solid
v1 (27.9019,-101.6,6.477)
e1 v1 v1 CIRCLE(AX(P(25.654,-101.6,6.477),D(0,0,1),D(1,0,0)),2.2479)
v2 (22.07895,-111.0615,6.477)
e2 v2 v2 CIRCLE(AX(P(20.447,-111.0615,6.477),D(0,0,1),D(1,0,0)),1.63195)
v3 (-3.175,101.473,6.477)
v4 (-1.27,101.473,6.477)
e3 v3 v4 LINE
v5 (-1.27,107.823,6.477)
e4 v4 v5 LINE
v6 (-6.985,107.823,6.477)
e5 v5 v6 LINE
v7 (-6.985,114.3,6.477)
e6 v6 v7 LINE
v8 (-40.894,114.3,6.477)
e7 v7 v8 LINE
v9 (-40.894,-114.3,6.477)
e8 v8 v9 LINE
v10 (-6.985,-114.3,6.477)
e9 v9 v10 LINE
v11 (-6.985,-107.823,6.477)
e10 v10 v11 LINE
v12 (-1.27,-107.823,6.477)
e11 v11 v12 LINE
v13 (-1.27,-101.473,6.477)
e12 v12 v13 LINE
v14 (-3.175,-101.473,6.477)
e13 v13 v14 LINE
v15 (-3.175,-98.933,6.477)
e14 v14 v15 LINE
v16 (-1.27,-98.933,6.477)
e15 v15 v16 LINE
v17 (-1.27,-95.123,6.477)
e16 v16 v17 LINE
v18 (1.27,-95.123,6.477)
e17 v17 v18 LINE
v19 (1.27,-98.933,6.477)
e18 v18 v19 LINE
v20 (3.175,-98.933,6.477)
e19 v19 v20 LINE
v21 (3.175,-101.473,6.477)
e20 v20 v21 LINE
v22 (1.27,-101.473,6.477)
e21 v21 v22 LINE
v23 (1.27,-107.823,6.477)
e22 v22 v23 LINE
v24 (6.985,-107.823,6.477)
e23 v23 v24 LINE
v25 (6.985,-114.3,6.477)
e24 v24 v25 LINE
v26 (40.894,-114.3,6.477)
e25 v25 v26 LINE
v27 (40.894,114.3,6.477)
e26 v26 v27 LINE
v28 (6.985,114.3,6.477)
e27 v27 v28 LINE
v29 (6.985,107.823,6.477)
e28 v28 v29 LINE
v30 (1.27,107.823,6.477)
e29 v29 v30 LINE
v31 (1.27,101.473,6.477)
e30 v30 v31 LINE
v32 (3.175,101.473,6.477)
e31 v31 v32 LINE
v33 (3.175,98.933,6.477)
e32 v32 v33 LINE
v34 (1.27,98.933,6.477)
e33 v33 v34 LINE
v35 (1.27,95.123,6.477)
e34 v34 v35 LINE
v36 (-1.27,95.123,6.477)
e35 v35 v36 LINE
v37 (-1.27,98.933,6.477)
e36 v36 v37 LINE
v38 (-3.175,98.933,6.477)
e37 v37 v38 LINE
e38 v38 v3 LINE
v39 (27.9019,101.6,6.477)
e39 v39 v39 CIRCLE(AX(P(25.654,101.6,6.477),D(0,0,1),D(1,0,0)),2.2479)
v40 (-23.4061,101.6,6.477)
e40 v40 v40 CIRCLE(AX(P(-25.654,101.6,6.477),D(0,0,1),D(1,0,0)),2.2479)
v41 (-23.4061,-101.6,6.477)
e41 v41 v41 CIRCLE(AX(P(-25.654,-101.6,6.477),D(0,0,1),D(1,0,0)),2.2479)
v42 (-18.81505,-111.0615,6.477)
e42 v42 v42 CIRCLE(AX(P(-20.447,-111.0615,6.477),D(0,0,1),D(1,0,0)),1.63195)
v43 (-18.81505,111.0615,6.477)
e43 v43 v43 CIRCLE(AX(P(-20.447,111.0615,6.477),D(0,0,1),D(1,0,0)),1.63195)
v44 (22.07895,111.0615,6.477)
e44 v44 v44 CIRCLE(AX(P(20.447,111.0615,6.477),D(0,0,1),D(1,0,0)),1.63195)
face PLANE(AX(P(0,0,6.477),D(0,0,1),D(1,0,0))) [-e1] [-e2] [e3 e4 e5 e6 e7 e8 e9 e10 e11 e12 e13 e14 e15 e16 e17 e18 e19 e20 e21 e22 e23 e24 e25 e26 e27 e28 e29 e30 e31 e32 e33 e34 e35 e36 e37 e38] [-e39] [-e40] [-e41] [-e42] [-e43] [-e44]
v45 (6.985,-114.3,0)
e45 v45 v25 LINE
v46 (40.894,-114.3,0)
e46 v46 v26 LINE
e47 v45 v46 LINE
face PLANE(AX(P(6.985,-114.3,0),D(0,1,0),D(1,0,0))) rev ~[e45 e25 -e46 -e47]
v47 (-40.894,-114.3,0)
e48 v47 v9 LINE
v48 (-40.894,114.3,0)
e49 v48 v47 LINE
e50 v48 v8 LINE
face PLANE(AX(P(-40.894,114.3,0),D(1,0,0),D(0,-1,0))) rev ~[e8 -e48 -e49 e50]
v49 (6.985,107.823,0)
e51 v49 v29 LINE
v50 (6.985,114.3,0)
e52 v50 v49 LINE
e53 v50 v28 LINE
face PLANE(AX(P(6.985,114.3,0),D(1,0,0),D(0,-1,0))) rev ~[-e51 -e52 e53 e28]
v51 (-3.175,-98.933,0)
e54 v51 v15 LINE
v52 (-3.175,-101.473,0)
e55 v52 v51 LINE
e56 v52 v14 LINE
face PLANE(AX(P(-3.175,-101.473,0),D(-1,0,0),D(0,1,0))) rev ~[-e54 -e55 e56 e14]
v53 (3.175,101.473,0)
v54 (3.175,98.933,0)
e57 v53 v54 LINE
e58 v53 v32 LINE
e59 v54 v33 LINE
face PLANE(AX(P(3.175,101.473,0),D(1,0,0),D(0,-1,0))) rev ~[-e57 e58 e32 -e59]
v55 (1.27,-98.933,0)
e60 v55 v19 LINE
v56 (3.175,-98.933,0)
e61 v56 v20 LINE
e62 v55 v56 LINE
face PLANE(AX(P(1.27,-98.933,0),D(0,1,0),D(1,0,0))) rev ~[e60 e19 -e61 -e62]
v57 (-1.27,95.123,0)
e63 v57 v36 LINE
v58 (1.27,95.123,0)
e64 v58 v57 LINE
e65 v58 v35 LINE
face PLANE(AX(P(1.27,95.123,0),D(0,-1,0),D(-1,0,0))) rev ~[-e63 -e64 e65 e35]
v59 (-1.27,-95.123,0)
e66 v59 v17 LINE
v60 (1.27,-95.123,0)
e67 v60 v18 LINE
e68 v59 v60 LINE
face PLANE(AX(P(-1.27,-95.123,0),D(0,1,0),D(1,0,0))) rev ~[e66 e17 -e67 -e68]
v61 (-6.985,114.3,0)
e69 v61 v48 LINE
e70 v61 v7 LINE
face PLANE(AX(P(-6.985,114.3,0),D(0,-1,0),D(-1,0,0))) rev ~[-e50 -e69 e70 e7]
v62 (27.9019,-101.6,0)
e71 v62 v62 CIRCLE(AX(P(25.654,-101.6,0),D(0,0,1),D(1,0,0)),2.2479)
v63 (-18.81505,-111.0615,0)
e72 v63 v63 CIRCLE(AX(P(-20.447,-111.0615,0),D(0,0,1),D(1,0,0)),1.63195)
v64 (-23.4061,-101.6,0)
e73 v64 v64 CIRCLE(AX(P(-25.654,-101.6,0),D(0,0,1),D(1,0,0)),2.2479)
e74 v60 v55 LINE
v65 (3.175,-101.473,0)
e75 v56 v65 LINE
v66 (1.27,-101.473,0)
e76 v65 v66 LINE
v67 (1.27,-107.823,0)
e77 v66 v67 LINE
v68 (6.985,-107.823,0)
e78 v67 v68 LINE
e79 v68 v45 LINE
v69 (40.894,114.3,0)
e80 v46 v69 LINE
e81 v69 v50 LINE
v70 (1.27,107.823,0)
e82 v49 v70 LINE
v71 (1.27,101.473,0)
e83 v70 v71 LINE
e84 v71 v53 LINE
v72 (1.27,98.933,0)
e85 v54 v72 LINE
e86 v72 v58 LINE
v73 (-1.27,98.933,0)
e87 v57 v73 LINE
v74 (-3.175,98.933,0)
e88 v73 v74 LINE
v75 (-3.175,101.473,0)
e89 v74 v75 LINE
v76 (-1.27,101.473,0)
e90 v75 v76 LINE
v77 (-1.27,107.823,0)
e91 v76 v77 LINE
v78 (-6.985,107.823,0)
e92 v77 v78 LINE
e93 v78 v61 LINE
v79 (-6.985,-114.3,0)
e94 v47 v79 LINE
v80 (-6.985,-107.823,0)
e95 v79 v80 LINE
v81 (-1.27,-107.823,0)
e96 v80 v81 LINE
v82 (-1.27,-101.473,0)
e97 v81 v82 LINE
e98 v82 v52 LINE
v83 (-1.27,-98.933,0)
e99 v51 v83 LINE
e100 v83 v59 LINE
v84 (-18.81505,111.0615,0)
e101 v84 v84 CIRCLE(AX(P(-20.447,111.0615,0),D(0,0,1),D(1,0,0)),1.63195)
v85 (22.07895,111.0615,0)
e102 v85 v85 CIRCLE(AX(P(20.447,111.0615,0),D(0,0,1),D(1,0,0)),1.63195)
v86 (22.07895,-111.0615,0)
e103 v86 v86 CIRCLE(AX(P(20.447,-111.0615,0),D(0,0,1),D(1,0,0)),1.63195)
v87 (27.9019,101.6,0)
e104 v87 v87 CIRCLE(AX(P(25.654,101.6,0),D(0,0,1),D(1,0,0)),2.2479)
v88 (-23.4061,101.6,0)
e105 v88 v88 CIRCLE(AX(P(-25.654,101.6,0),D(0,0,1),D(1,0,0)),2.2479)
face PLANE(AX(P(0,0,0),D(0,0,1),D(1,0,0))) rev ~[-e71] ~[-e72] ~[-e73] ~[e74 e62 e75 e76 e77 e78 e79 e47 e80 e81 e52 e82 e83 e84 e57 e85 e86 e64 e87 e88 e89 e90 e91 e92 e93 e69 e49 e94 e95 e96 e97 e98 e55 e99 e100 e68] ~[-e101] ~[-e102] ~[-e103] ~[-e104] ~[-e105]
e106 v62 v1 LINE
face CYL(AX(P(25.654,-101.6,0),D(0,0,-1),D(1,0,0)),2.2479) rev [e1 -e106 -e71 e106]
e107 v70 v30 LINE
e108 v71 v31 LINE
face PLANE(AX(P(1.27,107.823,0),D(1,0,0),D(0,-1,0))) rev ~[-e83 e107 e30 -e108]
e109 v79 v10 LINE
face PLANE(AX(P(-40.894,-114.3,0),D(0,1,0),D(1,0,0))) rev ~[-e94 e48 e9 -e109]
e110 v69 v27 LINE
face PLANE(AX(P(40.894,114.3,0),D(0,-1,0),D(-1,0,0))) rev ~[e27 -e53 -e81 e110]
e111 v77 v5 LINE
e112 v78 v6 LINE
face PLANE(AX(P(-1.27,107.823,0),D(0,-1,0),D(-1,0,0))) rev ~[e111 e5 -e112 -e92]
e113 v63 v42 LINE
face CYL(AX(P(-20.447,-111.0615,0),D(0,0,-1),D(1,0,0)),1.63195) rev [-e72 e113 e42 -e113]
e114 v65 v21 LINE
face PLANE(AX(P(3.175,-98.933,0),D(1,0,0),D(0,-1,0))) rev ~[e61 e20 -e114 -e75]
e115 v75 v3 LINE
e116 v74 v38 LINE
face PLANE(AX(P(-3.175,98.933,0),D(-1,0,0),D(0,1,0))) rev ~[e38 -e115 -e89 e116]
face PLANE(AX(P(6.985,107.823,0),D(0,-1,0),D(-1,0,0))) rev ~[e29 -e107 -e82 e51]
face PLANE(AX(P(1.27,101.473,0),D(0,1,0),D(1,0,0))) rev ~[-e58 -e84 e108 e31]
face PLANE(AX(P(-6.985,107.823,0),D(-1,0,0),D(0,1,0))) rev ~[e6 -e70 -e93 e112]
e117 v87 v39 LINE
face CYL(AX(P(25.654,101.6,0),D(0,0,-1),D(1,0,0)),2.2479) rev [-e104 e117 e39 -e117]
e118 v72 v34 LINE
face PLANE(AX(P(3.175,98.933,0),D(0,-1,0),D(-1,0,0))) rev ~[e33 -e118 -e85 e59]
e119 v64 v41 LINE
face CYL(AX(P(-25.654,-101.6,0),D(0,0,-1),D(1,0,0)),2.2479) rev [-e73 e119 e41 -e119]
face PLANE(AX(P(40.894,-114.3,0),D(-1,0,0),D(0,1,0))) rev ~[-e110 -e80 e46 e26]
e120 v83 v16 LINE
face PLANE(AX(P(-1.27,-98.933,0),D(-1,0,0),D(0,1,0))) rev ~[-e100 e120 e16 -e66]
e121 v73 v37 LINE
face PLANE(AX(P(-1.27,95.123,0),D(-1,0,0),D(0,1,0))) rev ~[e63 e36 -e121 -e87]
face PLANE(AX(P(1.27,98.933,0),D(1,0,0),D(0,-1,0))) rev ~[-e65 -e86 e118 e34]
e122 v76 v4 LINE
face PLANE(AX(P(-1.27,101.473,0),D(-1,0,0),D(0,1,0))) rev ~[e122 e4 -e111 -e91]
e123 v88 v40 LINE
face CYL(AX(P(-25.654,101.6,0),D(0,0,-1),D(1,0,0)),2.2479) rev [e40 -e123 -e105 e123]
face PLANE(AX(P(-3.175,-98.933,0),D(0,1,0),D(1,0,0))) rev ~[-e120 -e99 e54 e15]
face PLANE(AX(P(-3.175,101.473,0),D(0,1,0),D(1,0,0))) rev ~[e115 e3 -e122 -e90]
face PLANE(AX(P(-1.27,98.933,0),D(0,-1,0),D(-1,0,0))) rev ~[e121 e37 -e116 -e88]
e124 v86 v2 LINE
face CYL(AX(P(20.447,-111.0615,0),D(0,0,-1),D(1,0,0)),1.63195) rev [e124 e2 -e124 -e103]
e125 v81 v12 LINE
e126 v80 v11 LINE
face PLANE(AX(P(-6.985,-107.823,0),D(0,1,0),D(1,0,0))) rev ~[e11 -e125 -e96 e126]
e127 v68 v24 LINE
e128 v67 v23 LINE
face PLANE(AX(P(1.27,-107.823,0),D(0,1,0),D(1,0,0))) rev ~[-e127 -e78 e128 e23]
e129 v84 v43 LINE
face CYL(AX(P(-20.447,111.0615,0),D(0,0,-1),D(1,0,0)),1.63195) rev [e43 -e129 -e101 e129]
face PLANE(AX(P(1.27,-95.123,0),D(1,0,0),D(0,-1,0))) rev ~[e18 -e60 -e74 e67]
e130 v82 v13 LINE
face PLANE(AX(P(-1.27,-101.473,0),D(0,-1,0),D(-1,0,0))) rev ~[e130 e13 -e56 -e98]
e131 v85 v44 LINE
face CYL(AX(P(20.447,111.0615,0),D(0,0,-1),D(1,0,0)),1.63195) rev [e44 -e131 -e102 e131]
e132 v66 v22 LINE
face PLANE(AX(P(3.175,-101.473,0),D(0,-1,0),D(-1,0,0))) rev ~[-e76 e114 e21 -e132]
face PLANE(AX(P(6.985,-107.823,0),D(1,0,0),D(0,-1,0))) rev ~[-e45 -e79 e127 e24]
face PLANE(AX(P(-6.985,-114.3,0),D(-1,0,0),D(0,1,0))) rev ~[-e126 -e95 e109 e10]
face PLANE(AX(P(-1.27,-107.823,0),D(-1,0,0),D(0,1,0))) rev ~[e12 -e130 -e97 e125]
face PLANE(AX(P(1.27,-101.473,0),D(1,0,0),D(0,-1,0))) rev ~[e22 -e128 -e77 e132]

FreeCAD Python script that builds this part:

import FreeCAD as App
import Part
import Sketcher
Q = App.Units.Quantity

doc = App.newDocument("Part")
body = doc.addObject("PartDesign::Body", "Body")

# Sketch on XY plane
sketch1 = doc.addObject("Sketcher::SketchObject", "Sketch")
body.addObject(sketch1)
sketch1.AttachmentSupport = (doc.XY_Plane, [""])
sketch1.MapMode = "FlatFace"
sketch1.addGeometry([
    Part.LineSegment(App.Vector(-7, -107.8, 0), App.Vector(-1.3, -107.8, 0)),  # 0
    Part.LineSegment(App.Vector(-1.3, -107.8, 0), App.Vector(-1.3, -101.5, 0)),  # 1
    Part.LineSegment(App.Vector(-1.3, -101.5, 0), App.Vector(-3.2, -101.5, 0)),  # 2
    Part.LineSegment(App.Vector(-3.2, -101.5, 0), App.Vector(-3.2, -98.9, 0)),  # 3
    Part.LineSegment(App.Vector(-3.2, -98.9, 0), App.Vector(-1.3, -98.9, 0)),  # 4
    Part.LineSegment(App.Vector(-1.3, -98.9, 0), App.Vector(-1.3, -95.1, 0)),  # 5
    Part.LineSegment(App.Vector(-1.3, -95.1, 0), App.Vector(1.3, -95.1, 0)),  # 6
    Part.LineSegment(App.Vector(1.3, -95.1, 0), App.Vector(1.3, -98.9, 0)),  # 7
    Part.LineSegment(App.Vector(1.3, -98.9, 0), App.Vector(3.2, -98.9, 0)),  # 8
    Part.LineSegment(App.Vector(3.2, -98.9, 0), App.Vector(3.2, -101.5, 0)),  # 9
    Part.LineSegment(App.Vector(3.2, -101.5, 0), App.Vector(1.3, -101.5, 0)),  # 10
    Part.LineSegment(App.Vector(1.3, -101.5, 0), App.Vector(1.3, -107.8, 0)),  # 11
    Part.LineSegment(App.Vector(1.3, -107.8, 0), App.Vector(7, -107.8, 0)),  # 12
    Part.LineSegment(App.Vector(7, -107.8, 0), App.Vector(7, -114.3, 0)),  # 13
    Part.LineSegment(App.Vector(7, -114.3, 0), App.Vector(40.9, -114.3, 0)),  # 14
    Part.LineSegment(App.Vector(40.9, -114.3, 0), App.Vector(40.9, 114.3, 0)),  # 15
    Part.LineSegment(App.Vector(40.9, 114.3, 0), App.Vector(7, 114.3, 0)),  # 16
    Part.LineSegment(App.Vector(7, 114.3, 0), App.Vector(7, 107.8, 0)),  # 17
    Part.LineSegment(App.Vector(7, 107.8, 0), App.Vector(1.3, 107.8, 0)),  # 18
    Part.LineSegment(App.Vector(1.3, 107.8, 0), App.Vector(1.3, 101.5, 0)),  # 19
    Part.LineSegment(App.Vector(1.3, 101.5, 0), App.Vector(3.2, 101.5, 0)),  # 20
    Part.LineSegment(App.Vector(3.2, 101.5, 0), App.Vector(3.2, 98.9, 0)),  # 21
    Part.LineSegment(App.Vector(3.2, 98.9, 0), App.Vector(1.3, 98.9, 0)),  # 22
    Part.LineSegment(App.Vector(1.3, 98.9, 0), App.Vector(1.3, 95.1, 0)),  # 23
    Part.LineSegment(App.Vector(1.3, 95.1, 0), App.Vector(-1.3, 95.1, 0)),  # 24
    Part.LineSegment(App.Vector(-1.3, 95.1, 0), App.Vector(-1.3, 98.9, 0)),  # 25
    Part.LineSegment(App.Vector(-1.3, 98.9, 0), App.Vector(-3.2, 98.9, 0)),  # 26
    Part.LineSegment(App.Vector(-3.2, 98.9, 0), App.Vector(-3.2, 101.5, 0)),  # 27
    Part.LineSegment(App.Vector(-3.2, 101.5, 0), App.Vector(-1.3, 101.5, 0)),  # 28
    Part.LineSegment(App.Vector(-1.3, 101.5, 0), App.Vector(-1.3, 107.8, 0)),  # 29
    Part.LineSegment(App.Vector(-1.3, 107.8, 0), App.Vector(-7, 107.8, 0)),  # 30
    Part.LineSegment(App.Vector(-7, 107.8, 0), App.Vector(-7, 114.3, 0)),  # 31
    Part.LineSegment(App.Vector(-7, 114.3, 0), App.Vector(-40.9, 114.3, 0)),  # 32
    Part.LineSegment(App.Vector(-40.9, 114.3, 0), App.Vector(-40.9, -114.3, 0)),  # 33
    Part.LineSegment(App.Vector(-40.9, -114.3, 0), App.Vector(-7, -114.3, 0)),  # 34
    Part.LineSegment(App.Vector(-7, -114.3, 0), App.Vector(-7, -107.8, 0)),  # 35
    Part.Circle(App.Vector(-25.7, -101.6, 0), App.Vector(0, 0, 1), 2.2),  # 36
    Part.Circle(App.Vector(-20.4, -111.1, 0), App.Vector(0, 0, 1), 1.6),  # 37
    Part.Circle(App.Vector(20.4, -111.1, 0), App.Vector(0, 0, 1), 1.6),  # 38
    Part.Circle(App.Vector(25.7, -101.6, 0), App.Vector(0, 0, 1), 2.2),  # 39
    Part.Circle(App.Vector(-25.7, 101.6, 0), App.Vector(0, 0, 1), 2.2),  # 40
    Part.Circle(App.Vector(-20.4, 111.1, 0), App.Vector(0, 0, 1), 1.6),  # 41
    Part.Circle(App.Vector(20.4, 111.1, 0), App.Vector(0, 0, 1), 1.6),  # 42
    Part.Circle(App.Vector(25.7, 101.6, 0), App.Vector(0, 0, 1), 2.2),  # 43
], False)
sketch1.addConstraint([
    Sketcher.Constraint("Coincident", 0, 2, 1, 1),
    Sketcher.Constraint("Coincident", 1, 2, 2, 1),
    Sketcher.Constraint("Coincident", 2, 2, 3, 1),
    Sketcher.Constraint("Coincident", 3, 2, 4, 1),
    Sketcher.Constraint("Coincident", 4, 2, 5, 1),
    Sketcher.Constraint("Coincident", 5, 2, 6, 1),
    Sketcher.Constraint("Coincident", 6, 2, 7, 1),
    Sketcher.Constraint("Coincident", 7, 2, 8, 1),
    Sketcher.Constraint("Coincident", 8, 2, 9, 1),
    Sketcher.Constraint("Coincident", 9, 2, 10, 1),
    Sketcher.Constraint("Coincident", 10, 2, 11, 1),
    Sketcher.Constraint("Coincident", 11, 2, 12, 1),
    Sketcher.Constraint("Coincident", 12, 2, 13, 1),
    Sketcher.Constraint("Coincident", 13, 2, 14, 1),
    Sketcher.Constraint("Coincident", 14, 2, 15, 1),
    Sketcher.Constraint("Coincident", 15, 2, 16, 1),
    Sketcher.Constraint("Coincident", 16, 2, 17, 1),
    Sketcher.Constraint("Coincident", 17, 2, 18, 1),
    Sketcher.Constraint("Coincident", 18, 2, 19, 1),
    Sketcher.Constraint("Coincident", 19, 2, 20, 1),
    Sketcher.Constraint("Coincident", 20, 2, 21, 1),
    Sketcher.Constraint("Coincident", 21, 2, 22, 1),
    Sketcher.Constraint("Coincident", 22, 2, 23, 1),
    Sketcher.Constraint("Coincident", 23, 2, 24, 1),
    Sketcher.Constraint("Coincident", 24, 2, 25, 1),
    Sketcher.Constraint("Coincident", 25, 2, 26, 1),
    Sketcher.Constraint("Coincident", 26, 2, 27, 1),
    Sketcher.Constraint("Coincident", 27, 2, 28, 1),
    Sketcher.Constraint("Coincident", 28, 2, 29, 1),
    Sketcher.Constraint("Coincident", 29, 2, 30, 1),
    Sketcher.Constraint("Coincident", 30, 2, 31, 1),
    Sketcher.Constraint("Coincident", 31, 2, 32, 1),
    Sketcher.Constraint("Coincident", 32, 2, 33, 1),
    Sketcher.Constraint("Coincident", 33, 2, 34, 1),
    Sketcher.Constraint("Coincident", 34, 2, 35, 1),
    Sketcher.Constraint("Coincident", 35, 2, 0, 1),
    Sketcher.Constraint("Horizontal", 0),
    Sketcher.Constraint("Vertical", 1),
    Sketcher.Constraint("Horizontal", 2),
    Sketcher.Constraint("Vertical", 3),
    Sketcher.Constraint("Horizontal", 4),
    Sketcher.Constraint("Vertical", 5),
    Sketcher.Constraint("Horizontal", 6),
    Sketcher.Constraint("Vertical", 7),
    Sketcher.Constraint("Horizontal", 8),
    Sketcher.Constraint("Vertical", 9),
    Sketcher.Constraint("Horizontal", 10),
    Sketcher.Constraint("Vertical", 11),
    Sketcher.Constraint("Horizontal", 12),
    Sketcher.Constraint("Vertical", 13),
    Sketcher.Constraint("Horizontal", 14),
    Sketcher.Constraint("Vertical", 15),
    Sketcher.Constraint("Horizontal", 16),
    Sketcher.Constraint("Vertical", 17),
    Sketcher.Constraint("Horizontal", 18),
    Sketcher.Constraint("Vertical", 19),
    Sketcher.Constraint("Horizontal", 20),
    Sketcher.Constraint("Vertical", 21),
    Sketcher.Constraint("Horizontal", 22),
    Sketcher.Constraint("Vertical", 23),
    Sketcher.Constraint("Horizontal", 24),
    Sketcher.Constraint("Vertical", 25),
    Sketcher.Constraint("Horizontal", 26),
    Sketcher.Constraint("Vertical", 27),
    Sketcher.Constraint("Horizontal", 28),
    Sketcher.Constraint("Vertical", 29),
    Sketcher.Constraint("Horizontal", 30),
    Sketcher.Constraint("Vertical", 31),
    Sketcher.Constraint("Horizontal", 32),
    Sketcher.Constraint("Vertical", 33),
    Sketcher.Constraint("Horizontal", 34),
    Sketcher.Constraint("Vertical", 35),
    Sketcher.Constraint("Equal", 37, 38),
    Sketcher.Constraint("Equal", 36, 39),
    Sketcher.Constraint("Equal", 39, 40),
    Sketcher.Constraint("Equal", 38, 41),
    Sketcher.Constraint("Equal", 41, 42),
    Sketcher.Constraint("Equal", 40, 43),
    Sketcher.Constraint("Symmetric", 39, 3, 40, 3, -1, 1),
    Sketcher.Constraint("Symmetric", 38, 3, 41, 3, -1, 1),
    Sketcher.Constraint("Symmetric", 37, 3, 42, 3, -1, 1),
    Sketcher.Constraint("Symmetric", 36, 3, 43, 3, -1, 1),
    Sketcher.Constraint("Symmetric", 0, 2, 18, 2, -1, 1),
    Sketcher.Constraint("Symmetric", 2, 2, 20, 2, -1, 1),
    Sketcher.Constraint("Symmetric", 4, 2, 22, 2, -1, 1),
    Sketcher.Constraint("Symmetric", 6, 2, 24, 2, -1, 1),
    Sketcher.Constraint("Symmetric", 8, 2, 26, 2, -1, 1),
    Sketcher.Constraint("Symmetric", 10, 2, 28, 2, -1, 1),
    Sketcher.Constraint("Symmetric", 12, 2, 30, 2, -1, 1),
    Sketcher.Constraint("Symmetric", 14, 2, 32, 2, -1, 1),
    Sketcher.Constraint("Symmetric", 16, 2, 34, 2, -1, 1),
    Sketcher.Constraint("Symmetric", 37, 3, 38, 3, -2),
    Sketcher.Constraint("Symmetric", 36, 3, 39, 3, -2),
    Sketcher.Constraint("Symmetric", 4, 2, 7, 2, -2),
    Sketcher.Constraint("Symmetric", 2, 2, 9, 2, -2),
    Sketcher.Constraint("Symmetric", 0, 2, 11, 2, -2),
    Sketcher.Constraint("Symmetric", 16, 2, 31, 2, -2),
    Sketcher.Constraint("Vertical", 1, 2, 4, 2),
    Sketcher.Constraint("Equal", 24, 3),
    Sketcher.Constraint("DistanceY", 15, 1, 15, 2, Q("9 in")),
    Sketcher.Constraint("Diameter", 36, Q("0.177 in")),
    Sketcher.Constraint("DistanceX", 6, 1, 6, 2, Q("0.1 in")),
    Sketcher.Constraint("DistanceY", 36, 3, -1, 1, Q("4 in")),
    Sketcher.Constraint("Diameter", 37, Q("0.1285 in")),
    Sketcher.Constraint("DistanceY", 1, 1, 1, 2, Q("0.25 in")),
    Sketcher.Constraint("DistanceY", 5, 1, 5, 2, Q("0.15 in")),
    Sketcher.Constraint("DistanceX", 39, 3, 14, 2, Q("0.6 in")),
    Sketcher.Constraint("DistanceX", 0, 1, 0, 2, Q("0.225 in")),
    Sketcher.Constraint("DistanceX", 2, 2, 2, 1, Q("0.075 in")),
    Sketcher.Constraint("DistanceX", 14, 1, 14, 2, Q("1.335 in")),
    Sketcher.Constraint("DistanceY", 13, 2, 13, 1, Q("0.255 in")),
    Sketcher.Constraint("DistanceX", 37, 3, 38, 3, Q("1.61 in")),
    Sketcher.Constraint("DistanceY", 37, 3, 41, 3, Q("8.745 in")),
])
pad1 = doc.addObject("PartDesign::Pad", "Pad")
body.addObject(pad1)
pad1.Profile = sketch1
pad1.Length = Q("0.255 in")

doc.recompute()
